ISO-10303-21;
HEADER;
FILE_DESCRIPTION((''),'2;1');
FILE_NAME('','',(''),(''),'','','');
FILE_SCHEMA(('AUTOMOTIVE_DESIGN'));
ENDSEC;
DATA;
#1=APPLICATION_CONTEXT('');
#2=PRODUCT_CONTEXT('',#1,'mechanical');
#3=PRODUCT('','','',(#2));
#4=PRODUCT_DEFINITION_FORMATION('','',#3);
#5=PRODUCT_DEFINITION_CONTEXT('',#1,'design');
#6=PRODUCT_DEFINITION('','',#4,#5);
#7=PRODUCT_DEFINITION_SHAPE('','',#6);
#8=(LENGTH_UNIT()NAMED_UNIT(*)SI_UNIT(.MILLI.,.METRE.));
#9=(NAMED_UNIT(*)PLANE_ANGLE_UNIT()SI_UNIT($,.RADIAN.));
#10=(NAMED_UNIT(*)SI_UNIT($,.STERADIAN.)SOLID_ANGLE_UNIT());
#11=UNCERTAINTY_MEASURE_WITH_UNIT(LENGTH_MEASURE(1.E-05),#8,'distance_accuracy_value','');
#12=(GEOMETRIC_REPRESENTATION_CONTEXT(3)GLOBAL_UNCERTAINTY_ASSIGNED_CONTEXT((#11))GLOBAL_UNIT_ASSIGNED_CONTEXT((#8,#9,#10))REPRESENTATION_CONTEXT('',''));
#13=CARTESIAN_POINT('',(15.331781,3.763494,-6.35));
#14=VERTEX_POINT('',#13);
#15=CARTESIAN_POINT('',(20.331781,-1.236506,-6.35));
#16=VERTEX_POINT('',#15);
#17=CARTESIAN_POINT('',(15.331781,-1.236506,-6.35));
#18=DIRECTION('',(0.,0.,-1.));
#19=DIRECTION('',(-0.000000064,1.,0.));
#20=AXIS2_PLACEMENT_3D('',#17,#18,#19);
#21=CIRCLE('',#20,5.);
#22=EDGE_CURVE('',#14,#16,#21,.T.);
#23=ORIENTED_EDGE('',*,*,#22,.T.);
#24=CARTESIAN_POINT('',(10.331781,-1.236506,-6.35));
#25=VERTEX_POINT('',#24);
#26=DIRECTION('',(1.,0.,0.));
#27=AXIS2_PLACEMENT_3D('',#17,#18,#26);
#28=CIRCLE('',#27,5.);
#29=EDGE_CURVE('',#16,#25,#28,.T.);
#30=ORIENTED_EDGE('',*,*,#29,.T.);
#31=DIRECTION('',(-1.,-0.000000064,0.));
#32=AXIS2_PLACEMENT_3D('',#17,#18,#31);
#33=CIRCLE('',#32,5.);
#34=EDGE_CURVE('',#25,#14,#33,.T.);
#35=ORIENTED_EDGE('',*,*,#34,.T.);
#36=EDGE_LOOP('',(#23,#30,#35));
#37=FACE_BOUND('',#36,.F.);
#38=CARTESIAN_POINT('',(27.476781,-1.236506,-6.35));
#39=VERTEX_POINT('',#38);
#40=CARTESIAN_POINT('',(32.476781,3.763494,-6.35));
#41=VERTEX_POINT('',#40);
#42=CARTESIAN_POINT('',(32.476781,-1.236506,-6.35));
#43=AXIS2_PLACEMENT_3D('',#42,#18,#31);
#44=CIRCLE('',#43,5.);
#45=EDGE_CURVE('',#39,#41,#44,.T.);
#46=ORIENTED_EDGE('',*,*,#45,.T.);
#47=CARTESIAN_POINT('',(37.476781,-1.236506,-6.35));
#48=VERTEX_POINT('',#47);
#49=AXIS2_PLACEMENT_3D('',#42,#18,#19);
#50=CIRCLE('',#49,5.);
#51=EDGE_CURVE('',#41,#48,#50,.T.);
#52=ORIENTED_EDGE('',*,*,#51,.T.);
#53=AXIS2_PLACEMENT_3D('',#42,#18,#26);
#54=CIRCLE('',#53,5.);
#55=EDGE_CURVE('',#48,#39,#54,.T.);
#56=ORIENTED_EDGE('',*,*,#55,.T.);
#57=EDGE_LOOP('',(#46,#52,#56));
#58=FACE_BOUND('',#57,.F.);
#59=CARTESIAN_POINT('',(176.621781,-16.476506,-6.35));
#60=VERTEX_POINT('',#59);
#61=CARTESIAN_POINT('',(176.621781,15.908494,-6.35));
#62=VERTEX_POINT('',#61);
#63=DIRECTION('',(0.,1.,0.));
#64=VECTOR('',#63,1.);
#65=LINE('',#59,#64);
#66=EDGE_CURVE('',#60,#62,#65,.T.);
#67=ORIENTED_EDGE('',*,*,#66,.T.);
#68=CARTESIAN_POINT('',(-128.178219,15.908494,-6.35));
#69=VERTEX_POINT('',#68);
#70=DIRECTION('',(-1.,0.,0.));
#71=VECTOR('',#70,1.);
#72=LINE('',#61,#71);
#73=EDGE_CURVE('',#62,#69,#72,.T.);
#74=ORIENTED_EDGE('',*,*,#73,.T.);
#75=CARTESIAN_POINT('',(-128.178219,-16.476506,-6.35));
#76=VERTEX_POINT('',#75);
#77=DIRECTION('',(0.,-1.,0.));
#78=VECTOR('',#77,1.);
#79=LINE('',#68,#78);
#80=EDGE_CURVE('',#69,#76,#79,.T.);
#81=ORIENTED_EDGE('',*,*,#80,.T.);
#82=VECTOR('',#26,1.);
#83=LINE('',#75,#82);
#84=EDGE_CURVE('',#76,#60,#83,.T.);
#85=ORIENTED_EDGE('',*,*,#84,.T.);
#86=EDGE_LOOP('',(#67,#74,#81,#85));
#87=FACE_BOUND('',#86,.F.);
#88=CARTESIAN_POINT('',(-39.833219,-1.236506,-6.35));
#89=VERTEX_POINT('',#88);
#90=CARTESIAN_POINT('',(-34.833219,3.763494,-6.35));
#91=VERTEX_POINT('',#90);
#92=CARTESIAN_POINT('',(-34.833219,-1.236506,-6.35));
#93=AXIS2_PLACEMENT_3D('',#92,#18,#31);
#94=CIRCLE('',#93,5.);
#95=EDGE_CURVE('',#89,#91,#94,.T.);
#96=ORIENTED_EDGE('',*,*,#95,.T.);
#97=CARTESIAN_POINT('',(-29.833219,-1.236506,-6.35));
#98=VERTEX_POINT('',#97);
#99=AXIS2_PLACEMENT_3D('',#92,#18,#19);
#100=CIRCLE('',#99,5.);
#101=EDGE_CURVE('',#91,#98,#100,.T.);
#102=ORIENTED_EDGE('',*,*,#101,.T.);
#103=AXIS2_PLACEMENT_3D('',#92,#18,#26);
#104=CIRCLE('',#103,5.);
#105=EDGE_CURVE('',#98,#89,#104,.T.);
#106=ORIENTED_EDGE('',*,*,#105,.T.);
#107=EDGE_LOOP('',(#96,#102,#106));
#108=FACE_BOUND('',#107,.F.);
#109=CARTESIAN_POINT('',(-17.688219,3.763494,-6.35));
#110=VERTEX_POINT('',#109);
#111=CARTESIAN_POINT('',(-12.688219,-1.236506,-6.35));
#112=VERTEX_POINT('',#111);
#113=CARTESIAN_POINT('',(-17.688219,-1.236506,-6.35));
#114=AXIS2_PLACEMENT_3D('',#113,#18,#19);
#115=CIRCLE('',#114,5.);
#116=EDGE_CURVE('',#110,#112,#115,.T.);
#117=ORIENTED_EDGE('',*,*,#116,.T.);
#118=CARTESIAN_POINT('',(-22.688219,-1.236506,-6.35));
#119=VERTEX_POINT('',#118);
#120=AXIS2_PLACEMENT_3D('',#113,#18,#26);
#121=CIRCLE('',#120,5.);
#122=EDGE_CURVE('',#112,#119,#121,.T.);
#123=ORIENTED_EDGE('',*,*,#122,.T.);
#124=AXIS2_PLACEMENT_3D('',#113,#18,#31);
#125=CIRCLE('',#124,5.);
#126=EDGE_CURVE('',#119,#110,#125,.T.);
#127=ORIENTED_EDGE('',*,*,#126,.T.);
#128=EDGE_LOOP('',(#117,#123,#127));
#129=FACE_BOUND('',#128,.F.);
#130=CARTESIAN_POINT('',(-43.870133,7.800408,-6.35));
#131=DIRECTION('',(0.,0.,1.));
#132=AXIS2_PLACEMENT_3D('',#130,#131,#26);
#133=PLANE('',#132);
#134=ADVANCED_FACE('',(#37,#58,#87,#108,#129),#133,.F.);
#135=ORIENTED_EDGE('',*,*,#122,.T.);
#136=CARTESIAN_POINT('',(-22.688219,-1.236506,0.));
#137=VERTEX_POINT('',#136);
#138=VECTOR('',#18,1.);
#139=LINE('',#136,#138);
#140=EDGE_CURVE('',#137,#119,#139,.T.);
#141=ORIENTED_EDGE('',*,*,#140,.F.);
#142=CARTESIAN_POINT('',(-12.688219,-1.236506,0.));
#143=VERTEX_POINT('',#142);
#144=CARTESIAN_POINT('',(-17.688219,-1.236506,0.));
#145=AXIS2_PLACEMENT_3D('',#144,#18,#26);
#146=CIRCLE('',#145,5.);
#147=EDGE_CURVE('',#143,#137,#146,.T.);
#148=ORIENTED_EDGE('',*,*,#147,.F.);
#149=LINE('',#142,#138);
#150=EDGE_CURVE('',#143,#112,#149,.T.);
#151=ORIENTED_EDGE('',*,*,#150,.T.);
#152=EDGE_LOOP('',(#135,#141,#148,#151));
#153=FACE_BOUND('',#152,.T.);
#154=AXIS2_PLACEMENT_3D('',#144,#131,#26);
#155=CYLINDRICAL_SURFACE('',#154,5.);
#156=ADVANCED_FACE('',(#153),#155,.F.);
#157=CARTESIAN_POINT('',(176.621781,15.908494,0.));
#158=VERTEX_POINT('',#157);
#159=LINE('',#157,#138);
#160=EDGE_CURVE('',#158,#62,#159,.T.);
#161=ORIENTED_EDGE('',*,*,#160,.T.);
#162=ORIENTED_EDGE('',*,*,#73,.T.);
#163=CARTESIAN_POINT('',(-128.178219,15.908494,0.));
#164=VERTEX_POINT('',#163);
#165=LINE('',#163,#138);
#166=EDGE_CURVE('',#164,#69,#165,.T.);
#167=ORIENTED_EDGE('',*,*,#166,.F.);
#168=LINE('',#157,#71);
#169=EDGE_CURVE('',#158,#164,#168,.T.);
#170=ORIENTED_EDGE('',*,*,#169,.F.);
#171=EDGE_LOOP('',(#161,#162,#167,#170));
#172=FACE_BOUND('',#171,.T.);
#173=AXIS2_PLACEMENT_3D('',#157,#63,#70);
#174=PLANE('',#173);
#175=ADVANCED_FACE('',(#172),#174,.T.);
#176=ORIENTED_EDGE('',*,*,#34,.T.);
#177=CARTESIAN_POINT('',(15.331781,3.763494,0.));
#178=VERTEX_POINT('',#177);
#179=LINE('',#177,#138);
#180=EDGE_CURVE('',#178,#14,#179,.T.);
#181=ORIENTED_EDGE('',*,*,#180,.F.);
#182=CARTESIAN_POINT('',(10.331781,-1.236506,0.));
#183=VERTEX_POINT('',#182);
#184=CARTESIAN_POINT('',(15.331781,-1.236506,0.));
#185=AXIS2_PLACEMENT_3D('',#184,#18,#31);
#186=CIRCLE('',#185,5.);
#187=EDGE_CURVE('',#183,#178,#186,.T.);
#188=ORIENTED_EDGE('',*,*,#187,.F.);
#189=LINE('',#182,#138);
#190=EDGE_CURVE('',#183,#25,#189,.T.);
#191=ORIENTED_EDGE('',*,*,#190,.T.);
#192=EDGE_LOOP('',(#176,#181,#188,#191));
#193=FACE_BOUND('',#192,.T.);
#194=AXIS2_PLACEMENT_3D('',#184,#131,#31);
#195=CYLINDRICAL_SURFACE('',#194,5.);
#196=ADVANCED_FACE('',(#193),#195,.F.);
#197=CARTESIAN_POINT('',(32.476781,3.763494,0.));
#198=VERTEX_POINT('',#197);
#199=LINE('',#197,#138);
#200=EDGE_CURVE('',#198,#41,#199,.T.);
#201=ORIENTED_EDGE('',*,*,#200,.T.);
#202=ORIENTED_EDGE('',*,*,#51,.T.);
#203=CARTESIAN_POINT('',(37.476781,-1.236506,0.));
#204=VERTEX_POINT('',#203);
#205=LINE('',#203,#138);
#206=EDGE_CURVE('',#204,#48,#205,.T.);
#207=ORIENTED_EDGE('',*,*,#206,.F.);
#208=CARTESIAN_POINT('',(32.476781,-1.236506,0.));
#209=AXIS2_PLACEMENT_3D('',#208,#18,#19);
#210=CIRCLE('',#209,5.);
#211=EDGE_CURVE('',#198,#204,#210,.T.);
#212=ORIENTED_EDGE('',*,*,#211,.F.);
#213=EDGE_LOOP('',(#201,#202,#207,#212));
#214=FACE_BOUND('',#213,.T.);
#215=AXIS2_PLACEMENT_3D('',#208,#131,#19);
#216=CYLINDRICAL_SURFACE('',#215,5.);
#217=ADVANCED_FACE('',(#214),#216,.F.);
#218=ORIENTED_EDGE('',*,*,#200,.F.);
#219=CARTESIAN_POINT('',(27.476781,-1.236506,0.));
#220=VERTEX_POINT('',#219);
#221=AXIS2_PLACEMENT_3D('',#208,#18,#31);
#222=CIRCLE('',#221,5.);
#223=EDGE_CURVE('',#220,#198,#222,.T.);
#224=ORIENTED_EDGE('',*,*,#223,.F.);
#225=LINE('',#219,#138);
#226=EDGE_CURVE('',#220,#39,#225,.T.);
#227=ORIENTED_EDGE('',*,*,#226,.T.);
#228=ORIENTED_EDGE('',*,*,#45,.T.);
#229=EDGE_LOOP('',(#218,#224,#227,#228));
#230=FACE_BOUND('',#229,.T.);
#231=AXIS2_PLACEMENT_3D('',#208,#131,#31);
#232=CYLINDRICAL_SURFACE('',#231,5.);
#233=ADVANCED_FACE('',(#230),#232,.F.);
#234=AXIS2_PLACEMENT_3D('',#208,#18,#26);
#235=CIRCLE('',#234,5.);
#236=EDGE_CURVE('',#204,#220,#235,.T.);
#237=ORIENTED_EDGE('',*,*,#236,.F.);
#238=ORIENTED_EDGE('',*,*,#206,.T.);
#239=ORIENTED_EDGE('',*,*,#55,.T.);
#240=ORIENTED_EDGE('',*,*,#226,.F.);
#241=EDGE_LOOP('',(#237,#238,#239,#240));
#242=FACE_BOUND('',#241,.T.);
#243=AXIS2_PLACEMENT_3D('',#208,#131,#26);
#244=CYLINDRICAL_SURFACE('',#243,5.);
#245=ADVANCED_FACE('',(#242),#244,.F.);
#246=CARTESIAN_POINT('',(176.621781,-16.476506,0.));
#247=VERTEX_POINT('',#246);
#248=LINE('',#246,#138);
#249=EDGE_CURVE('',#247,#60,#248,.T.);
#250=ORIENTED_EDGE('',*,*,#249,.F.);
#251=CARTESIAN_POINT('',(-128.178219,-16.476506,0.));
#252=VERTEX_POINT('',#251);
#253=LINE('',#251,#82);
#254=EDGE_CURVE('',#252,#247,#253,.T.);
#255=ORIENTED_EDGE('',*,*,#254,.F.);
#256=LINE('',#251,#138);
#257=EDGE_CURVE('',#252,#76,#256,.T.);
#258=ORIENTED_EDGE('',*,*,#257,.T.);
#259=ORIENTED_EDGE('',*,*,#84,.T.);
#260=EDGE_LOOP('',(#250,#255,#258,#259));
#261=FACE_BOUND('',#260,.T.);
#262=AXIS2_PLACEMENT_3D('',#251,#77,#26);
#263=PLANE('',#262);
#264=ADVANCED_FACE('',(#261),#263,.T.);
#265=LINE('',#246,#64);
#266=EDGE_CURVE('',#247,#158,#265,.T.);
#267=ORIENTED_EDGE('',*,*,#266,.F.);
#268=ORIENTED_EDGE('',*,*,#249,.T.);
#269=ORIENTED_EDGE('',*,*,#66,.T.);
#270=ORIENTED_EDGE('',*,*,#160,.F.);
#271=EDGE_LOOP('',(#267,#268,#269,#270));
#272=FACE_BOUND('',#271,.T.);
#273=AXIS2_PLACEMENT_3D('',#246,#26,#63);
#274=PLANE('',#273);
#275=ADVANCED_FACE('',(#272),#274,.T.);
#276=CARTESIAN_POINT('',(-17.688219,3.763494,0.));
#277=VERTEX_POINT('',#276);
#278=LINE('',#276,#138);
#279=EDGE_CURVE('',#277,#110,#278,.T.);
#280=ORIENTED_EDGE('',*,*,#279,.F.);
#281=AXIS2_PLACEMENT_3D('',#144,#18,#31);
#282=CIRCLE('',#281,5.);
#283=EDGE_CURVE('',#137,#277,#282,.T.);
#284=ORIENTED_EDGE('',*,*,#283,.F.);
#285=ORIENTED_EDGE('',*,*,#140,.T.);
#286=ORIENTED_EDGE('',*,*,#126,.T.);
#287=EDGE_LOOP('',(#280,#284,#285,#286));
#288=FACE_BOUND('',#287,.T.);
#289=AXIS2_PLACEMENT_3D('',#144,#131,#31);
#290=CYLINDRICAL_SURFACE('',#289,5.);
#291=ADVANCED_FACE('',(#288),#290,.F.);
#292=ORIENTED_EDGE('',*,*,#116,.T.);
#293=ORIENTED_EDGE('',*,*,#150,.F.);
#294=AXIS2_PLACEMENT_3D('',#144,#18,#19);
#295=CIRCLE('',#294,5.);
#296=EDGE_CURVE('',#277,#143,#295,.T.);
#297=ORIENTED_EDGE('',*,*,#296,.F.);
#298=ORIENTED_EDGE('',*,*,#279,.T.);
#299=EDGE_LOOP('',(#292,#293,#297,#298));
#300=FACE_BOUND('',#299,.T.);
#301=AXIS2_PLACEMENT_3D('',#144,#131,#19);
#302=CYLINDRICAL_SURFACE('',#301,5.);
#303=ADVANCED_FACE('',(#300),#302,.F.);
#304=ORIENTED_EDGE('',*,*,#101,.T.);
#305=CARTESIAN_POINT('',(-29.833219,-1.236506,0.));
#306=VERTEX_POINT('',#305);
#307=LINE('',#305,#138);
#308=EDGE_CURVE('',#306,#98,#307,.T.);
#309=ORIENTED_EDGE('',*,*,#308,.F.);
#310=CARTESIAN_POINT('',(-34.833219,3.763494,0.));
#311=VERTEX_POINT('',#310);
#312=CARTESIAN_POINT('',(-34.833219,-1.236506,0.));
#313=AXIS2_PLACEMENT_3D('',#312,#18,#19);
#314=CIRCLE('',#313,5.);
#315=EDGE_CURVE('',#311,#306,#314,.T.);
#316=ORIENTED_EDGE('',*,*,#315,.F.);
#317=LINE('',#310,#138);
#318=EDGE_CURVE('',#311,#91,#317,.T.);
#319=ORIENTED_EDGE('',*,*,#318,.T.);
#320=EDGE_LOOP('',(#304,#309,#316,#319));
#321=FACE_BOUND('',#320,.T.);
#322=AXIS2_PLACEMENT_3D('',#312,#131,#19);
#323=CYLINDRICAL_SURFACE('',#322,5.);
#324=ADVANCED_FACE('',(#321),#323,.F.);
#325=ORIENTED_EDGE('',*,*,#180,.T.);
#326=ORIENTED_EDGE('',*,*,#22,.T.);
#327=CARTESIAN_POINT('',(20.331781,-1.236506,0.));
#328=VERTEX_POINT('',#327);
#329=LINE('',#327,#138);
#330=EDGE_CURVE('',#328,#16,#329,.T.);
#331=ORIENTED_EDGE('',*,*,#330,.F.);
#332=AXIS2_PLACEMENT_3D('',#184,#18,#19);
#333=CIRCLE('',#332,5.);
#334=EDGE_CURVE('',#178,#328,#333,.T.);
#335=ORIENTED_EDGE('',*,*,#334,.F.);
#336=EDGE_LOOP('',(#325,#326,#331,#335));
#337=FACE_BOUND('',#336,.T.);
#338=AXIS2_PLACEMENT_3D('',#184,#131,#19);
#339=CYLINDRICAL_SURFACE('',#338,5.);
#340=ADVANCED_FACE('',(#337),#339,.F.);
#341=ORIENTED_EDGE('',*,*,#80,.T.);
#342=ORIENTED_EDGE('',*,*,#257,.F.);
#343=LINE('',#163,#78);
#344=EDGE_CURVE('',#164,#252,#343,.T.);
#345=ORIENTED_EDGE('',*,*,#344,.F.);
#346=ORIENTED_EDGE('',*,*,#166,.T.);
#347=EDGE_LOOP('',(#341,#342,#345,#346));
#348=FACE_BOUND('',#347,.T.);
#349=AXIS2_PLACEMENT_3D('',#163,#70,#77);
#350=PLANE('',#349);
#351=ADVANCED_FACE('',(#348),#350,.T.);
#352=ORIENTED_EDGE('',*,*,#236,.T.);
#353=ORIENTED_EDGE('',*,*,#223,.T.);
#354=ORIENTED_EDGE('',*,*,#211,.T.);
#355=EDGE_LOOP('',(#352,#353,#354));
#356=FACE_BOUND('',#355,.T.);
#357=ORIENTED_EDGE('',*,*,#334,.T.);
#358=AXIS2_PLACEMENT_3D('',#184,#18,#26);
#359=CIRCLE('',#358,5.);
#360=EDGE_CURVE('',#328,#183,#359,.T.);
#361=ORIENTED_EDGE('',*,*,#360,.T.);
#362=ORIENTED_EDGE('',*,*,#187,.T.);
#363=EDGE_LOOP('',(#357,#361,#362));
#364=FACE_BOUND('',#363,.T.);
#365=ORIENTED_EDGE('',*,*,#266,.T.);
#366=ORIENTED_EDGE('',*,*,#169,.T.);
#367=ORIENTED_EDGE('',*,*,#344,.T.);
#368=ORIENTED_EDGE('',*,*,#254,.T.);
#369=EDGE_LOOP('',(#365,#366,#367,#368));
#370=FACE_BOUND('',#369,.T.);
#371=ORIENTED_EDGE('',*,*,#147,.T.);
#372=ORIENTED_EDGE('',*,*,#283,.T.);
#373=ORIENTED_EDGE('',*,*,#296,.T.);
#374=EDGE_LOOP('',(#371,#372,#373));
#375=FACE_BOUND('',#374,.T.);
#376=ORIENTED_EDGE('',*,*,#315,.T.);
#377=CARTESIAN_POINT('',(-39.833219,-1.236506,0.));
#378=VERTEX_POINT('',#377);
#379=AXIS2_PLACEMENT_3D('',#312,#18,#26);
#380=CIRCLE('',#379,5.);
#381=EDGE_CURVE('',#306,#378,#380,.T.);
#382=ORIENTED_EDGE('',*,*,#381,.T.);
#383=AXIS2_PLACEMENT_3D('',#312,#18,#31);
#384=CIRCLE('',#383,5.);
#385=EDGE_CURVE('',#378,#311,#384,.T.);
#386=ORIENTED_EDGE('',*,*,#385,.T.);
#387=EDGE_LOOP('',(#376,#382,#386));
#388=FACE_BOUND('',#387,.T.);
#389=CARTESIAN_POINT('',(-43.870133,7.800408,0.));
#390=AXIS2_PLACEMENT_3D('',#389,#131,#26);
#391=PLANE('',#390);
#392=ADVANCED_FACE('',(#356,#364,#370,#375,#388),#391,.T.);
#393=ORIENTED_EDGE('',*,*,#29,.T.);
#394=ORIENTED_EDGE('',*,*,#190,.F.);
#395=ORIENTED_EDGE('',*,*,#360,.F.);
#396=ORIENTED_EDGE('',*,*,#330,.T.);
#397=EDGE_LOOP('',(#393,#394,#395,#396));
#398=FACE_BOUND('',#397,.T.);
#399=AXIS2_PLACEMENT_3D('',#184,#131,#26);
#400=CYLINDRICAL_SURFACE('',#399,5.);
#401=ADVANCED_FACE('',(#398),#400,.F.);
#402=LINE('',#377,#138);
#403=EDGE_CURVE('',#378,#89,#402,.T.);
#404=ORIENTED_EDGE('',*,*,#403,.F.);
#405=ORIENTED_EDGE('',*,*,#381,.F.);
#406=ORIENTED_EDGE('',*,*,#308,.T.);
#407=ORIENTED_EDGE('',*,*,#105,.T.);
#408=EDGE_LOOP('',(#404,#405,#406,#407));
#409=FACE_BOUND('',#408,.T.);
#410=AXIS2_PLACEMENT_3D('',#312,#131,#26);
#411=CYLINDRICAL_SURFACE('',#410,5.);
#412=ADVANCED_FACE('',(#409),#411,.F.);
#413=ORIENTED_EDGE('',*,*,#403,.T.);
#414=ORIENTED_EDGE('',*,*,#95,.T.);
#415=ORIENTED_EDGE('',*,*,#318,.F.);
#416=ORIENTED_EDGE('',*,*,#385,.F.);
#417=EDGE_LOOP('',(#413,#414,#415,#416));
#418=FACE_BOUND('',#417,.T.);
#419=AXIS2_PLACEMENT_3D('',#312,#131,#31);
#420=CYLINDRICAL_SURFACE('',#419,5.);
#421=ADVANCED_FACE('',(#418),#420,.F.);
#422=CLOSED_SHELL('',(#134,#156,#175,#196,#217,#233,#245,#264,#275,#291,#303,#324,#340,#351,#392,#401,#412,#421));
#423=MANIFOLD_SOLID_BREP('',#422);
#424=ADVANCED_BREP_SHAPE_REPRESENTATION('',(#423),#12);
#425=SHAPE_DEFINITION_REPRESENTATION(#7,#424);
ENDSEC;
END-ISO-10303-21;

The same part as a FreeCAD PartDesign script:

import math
import FreeCAD as App
import Part
import Sketcher

V = App.Vector
Q = App.Units.Quantity

doc = App.newDocument("Part")
body = doc.addObject("PartDesign::Body", "Body")

# Sketch on XY plane
sketch1 = body.newObject("Sketcher::SketchObject", "Sketch")
sketch1.AttachmentSupport = (doc.getObject("XY_Plane"), [""])
sketch1.MapMode = "FlatFace"
sketch1.addGeometry(Part.LineSegment(V(-128.178219, 15.908494, 0), V(-128.178219, -16.476506, 0)), False)
sketch1.addGeometry(Part.LineSegment(V(-128.178219, -16.476506, 0), V(176.621781, -16.476506, 0)), False)
sketch1.addGeometry(Part.LineSegment(V(176.621781, -16.476506, 0), V(176.621781, 15.908494, 0)), False)
sketch1.addGeometry(Part.LineSegment(V(176.621781, 15.908494, 0), V(-128.178219, 15.908494, 0)), False)
sketch1.addGeometry(Part.ArcOfCircle(Part.Circle(V(32.476781, -1.236506, 0), V(0, 0, 1), 5), math.radians(180), math.radians(360)), False)
sketch1.addGeometry(Part.ArcOfCircle(Part.Circle(V(32.476781, -1.236506, 0), V(0, 0, 1), 5), math.radians(89.999996), math.radians(180.000004)), False)
sketch1.addGeometry(Part.ArcOfCircle(Part.Circle(V(32.476781, -1.236506, 0), V(0, 0, 1), 5), math.radians(-0.000004), math.radians(90.000004)), False)
sketch1.addGeometry(Part.ArcOfCircle(Part.Circle(V(15.331781, -1.236506, 0), V(0, 0, 1), 5), math.radians(180), math.radians(360)), False)
sketch1.addGeometry(Part.ArcOfCircle(Part.Circle(V(15.331781, -1.236506, 0), V(0, 0, 1), 5), math.radians(89.999996), math.radians(180.000004)), False)
sketch1.addGeometry(Part.ArcOfCircle(Part.Circle(V(15.331781, -1.236506, 0), V(0, 0, 1), 5), math.radians(-0.000004), math.radians(90.000004)), False)
sketch1.addGeometry(Part.ArcOfCircle(Part.Circle(V(-17.688219, -1.236506, 0), V(0, 0, 1), 5), math.radians(180), math.radians(360)), False)
sketch1.addGeometry(Part.ArcOfCircle(Part.Circle(V(-17.688219, -1.236506, 0), V(0, 0, 1), 5), math.radians(89.999996), math.radians(180.000004)), False)
sketch1.addGeometry(Part.ArcOfCircle(Part.Circle(V(-17.688219, -1.236506, 0), V(0, 0, 1), 5), math.radians(-0.000004), math.radians(90.000004)), False)
sketch1.addGeometry(Part.ArcOfCircle(Part.Circle(V(-34.833219, -1.236506, 0), V(0, 0, 1), 5), math.radians(89.999996), math.radians(180.000004)), False)
sketch1.addGeometry(Part.ArcOfCircle(Part.Circle(V(-34.833219, -1.236506, 0), V(0, 0, 1), 5), math.radians(-0.000004), math.radians(90.000004)), False)
sketch1.addGeometry(Part.ArcOfCircle(Part.Circle(V(-34.833219, -1.236506, 0), V(0, 0, 1), 5), math.radians(180), math.radians(360)), False)
sketch1.addConstraint(Sketcher.Constraint("Coincident", 0, 2, 1, 1))
sketch1.addConstraint(Sketcher.Constraint("Coincident", 1, 2, 2, 1))
sketch1.addConstraint(Sketcher.Constraint("Coincident", 2, 2, 3, 1))
sketch1.addConstraint(Sketcher.Constraint("Coincident", 3, 2, 0, 1))
sketch1.addConstraint(Sketcher.Constraint("Tangent", 4, 1, 5, 2))
sketch1.addConstraint(Sketcher.Constraint("Tangent", 5, 1, 6, 2))
sketch1.addConstraint(Sketcher.Constraint("Tangent", 6, 1, 4, 2))
sketch1.addConstraint(Sketcher.Constraint("Tangent", 7, 1, 8, 2))
sketch1.addConstraint(Sketcher.Constraint("Tangent", 8, 1, 9, 2))
sketch1.addConstraint(Sketcher.Constraint("Tangent", 9, 1, 7, 2))
sketch1.addConstraint(Sketcher.Constraint("Tangent", 10, 1, 11, 2))
sketch1.addConstraint(Sketcher.Constraint("Tangent", 11, 1, 12, 2))
sketch1.addConstraint(Sketcher.Constraint("Tangent", 12, 1, 10, 2))
sketch1.addConstraint(Sketcher.Constraint("Tangent", 13, 1, 14, 2))
sketch1.addConstraint(Sketcher.Constraint("Tangent", 14, 1, 15, 2))
sketch1.addConstraint(Sketcher.Constraint("Tangent", 15, 1, 13, 2))
sketch1.addConstraint(Sketcher.Constraint("Vertical", 0))
sketch1.addConstraint(Sketcher.Constraint("Horizontal", 1))
sketch1.addConstraint(Sketcher.Constraint("Vertical", 2))
sketch1.addConstraint(Sketcher.Constraint("Horizontal", 3))
sketch1.addConstraint(Sketcher.Constraint("Equal", 6, 7))
sketch1.addConstraint(Sketcher.Constraint("Equal", 9, 10))
sketch1.addConstraint(Sketcher.Constraint("Equal", 12, 13))
sketch1.addConstraint(Sketcher.Constraint("Horizontal", 6, 3, 7, 3))
sketch1.addConstraint(Sketcher.Constraint("Horizontal", 9, 3, 10, 3))
sketch1.addConstraint(Sketcher.Constraint("Horizontal", 12, 3, 13, 3))
sketch1.addConstraint(Sketcher.Constraint("Horizontal", 15, 3, 4, 1))
sketch1.addConstraint(Sketcher.Constraint("Horizontal", 4, 1, 6, 1))
sketch1.addConstraint(Sketcher.Constraint("Horizontal", 6, 1, 7, 1))
sketch1.addConstraint(Sketcher.Constraint("Horizontal", 7, 1, 9, 1))
sketch1.addConstraint(Sketcher.Constraint("Horizontal", 9, 1, 10, 1))
sketch1.addConstraint(Sketcher.Constraint("Horizontal", 10, 1, 12, 1))
sketch1.addConstraint(Sketcher.Constraint("Horizontal", 12, 1, 14, 1))
sketch1.addConstraint(Sketcher.Constraint("Horizontal", 14, 1, 15, 1))
sketch1.addConstraint(Sketcher.Constraint("Vertical", 6, 3, 5, 1))
sketch1.addConstraint(Sketcher.Constraint("Vertical", 9, 3, 8, 1))
sketch1.addConstraint(Sketcher.Constraint("Vertical", 12, 3, 11, 1))
sketch1.addConstraint(Sketcher.Constraint("Vertical", 15, 3, 13, 1))
sketch1.addConstraint(Sketcher.Constraint("DistanceX", 1, 1, 1, 2, Q("12 in")))
sketch1.addConstraint(Sketcher.Constraint("DistanceX", 10, 3, 8, 3, Q("1.3 in")))
sketch1.addConstraint(Sketcher.Constraint("DistanceY", 0, 2, 13, 3, Q("0.6 in")))
sketch1.addConstraint(Sketcher.Constraint("DistanceY", 0, 2, 0, 1, Q("1.275 in")))
sketch1.addConstraint(Sketcher.Constraint("Radius", 4, 5.0))
sketch1.addConstraint(Sketcher.Constraint("DistanceX", 0, 2, 11, 3, Q("4.35 in")))
sketch1.addConstraint(Sketcher.Constraint("DistanceX", 7, 3, 5, 3, Q("0.675 in")))
sketch1.addConstraint(Sketcher.Constraint("DistanceX", 13, 3, 11, 3, Q("0.675 in")))
sketch1.addConstraint(Sketcher.Constraint("DistanceX", -1, 1, 4, 3, 32.476781))
sketch1.addConstraint(Sketcher.Constraint("DistanceY", 4, 3, -1, 1, 1.236506))
pad1 = body.newObject("PartDesign::Pad", "Pad")
pad1.Profile = sketch1
pad1.Length = Q("0.25 in")
pad1.Reversed = True

doc.recompute()
